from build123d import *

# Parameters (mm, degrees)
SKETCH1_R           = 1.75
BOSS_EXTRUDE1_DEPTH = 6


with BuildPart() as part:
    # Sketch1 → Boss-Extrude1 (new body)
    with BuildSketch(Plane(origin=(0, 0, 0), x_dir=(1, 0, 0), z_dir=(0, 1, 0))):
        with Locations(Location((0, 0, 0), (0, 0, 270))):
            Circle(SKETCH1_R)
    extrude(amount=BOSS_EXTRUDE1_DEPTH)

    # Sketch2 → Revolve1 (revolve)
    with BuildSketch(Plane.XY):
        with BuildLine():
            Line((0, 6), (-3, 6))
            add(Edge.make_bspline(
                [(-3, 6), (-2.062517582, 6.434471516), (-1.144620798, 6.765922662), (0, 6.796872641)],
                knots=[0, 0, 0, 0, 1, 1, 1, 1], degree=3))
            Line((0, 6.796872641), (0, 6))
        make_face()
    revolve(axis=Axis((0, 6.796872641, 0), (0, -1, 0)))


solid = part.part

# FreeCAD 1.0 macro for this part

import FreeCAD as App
import Part
import Sketcher
Q = App.Units.Quantity

doc = App.newDocument("Part")
body = doc.addObject("PartDesign::Body", "Body")

sketch1 = body.newObject("Sketcher::SketchObject", "Sketch")
sketch1.AttachmentSupport = (doc.getObject("XZ_Plane"), [""])
sketch1.MapMode = "FlatFace"
sketch1.addGeometry(Part.Circle(App.Vector(0, 0, 0), App.Vector(0, 0, 1), 1.75), False)
sketch1.addConstraint([
    Sketcher.Constraint("Coincident", 0, 3, -1, 1),
    Sketcher.Constraint("Diameter", 0, Q("3.5 mm")),
])
pad1 = body.newObject("PartDesign::Pad", "Pad")
pad1.Profile = sketch1
pad1.Length = 6
pad1.Reversed = True

sketch2 = body.newObject("Sketcher::SketchObject", "Sketch001")
sketch2.AttachmentSupport = (doc.getObject("XY_Plane"), [""])
sketch2.MapMode = "FlatFace"
sketch2.addGeometry([
    Part.LineSegment(App.Vector(-3, 6, 0), App.Vector(0, 6, 0)),
    Part.LineSegment(App.Vector(0, 6, 0), App.Vector(0, 6.796873, 0)),
    Part.BSplineCurve([App.Vector(-3, 6, 0), App.Vector(-2.062518, 6.434472, 0), App.Vector(-1.144621, 6.765923, 0), App.Vector(0, 6.796873, 0)], [4, 4], [0, 1], False, 3, [1, 1, 1, 1], False),
], False)
sketch2.addConstraint([
    Sketcher.Constraint("Block", 2),
    Sketcher.Constraint("Coincident", 0, 2, 1, 1),
    Sketcher.Constraint("Coincident", 1, 2, 2, 2),
    Sketcher.Constraint("Coincident", 2, 1, 0, 1),
    Sketcher.Constraint("Horizontal", 0),
    Sketcher.Constraint("Vertical", 1),
])
revolution = body.newObject("PartDesign::Revolution", "Revolution")
revolution.Profile = sketch2
revolution.ReferenceAxis = (sketch2, ["V_Axis"])
revolution.Angle = 360

doc.recompute()
